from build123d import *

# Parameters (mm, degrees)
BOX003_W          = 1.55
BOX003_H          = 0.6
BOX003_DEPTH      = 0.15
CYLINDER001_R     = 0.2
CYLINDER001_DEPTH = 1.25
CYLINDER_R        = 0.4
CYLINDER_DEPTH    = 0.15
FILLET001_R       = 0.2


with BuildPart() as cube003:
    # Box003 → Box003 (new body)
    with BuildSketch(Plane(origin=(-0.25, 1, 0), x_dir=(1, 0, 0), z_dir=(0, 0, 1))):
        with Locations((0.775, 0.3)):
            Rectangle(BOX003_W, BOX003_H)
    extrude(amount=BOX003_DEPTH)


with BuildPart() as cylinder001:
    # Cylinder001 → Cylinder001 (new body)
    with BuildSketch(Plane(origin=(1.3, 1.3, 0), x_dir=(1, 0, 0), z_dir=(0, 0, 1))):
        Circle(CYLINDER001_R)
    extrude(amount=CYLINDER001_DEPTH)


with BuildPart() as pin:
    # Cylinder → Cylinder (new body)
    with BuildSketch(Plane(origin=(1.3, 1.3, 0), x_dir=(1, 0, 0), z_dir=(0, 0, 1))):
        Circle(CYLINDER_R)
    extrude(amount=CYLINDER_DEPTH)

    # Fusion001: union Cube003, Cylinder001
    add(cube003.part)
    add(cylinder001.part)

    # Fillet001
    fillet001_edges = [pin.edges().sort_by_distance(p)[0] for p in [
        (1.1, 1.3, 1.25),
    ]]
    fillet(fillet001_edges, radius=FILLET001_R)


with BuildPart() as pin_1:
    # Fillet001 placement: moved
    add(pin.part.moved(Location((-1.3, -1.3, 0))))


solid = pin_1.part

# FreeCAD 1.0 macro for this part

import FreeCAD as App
import Part
import Sketcher


def edges_at(feature, points):
    """Names of the edges that pass closest to the given points."""
    edges = feature.Shape.Edges
    near = lambda p: min(range(len(edges)), key=lambda i: edges[i].distToShape(Part.Vertex(*p))[0])
    return sorted({f"Edge{near(p) + 1}" for p in points})

doc = App.newDocument("Part")
body = doc.addObject("PartDesign::Body", "Body")

# Sketch on XY plane
sketch1 = body.newObject("Sketcher::SketchObject", "Sketch")
sketch1.AttachmentSupport = (doc.getObject("XY_Plane"), [""])
sketch1.MapMode = "FlatFace"
sketch1.addGeometry(Part.LineSegment(App.Vector(-0.2, 1.6, 0), App.Vector(-0.2, 1, 0)), False)
sketch1.addGeometry(Part.LineSegment(App.Vector(-0.2, 1, 0), App.Vector(1.3, 1, 0)), False)
sketch1.addGeometry(Part.LineSegment(App.Vector(1.3, 1, 0), App.Vector(1.3, 1.6, 0)), False)
sketch1.addGeometry(Part.LineSegment(App.Vector(1.3, 1.6, 0), App.Vector(-0.2, 1.6, 0)), False)
sketch1.addConstraint(Sketcher.Constraint("Coincident", 0, 2, 1, 1))
sketch1.addConstraint(Sketcher.Constraint("Coincident", 1, 2, 2, 1))
sketch1.addConstraint(Sketcher.Constraint("Coincident", 2, 2, 3, 1))
sketch1.addConstraint(Sketcher.Constraint("Coincident", 3, 2, 0, 1))
sketch1.addConstraint(Sketcher.Constraint("Vertical", 0))
sketch1.addConstraint(Sketcher.Constraint("Horizontal", 1))
sketch1.addConstraint(Sketcher.Constraint("Vertical", 2))
sketch1.addConstraint(Sketcher.Constraint("Horizontal", 3))
sketch1.addConstraint(Sketcher.Constraint("DistanceY", 0, 2, 0, 1, 0.6))
sketch1.addConstraint(Sketcher.Constraint("DistanceY", -1, 1, 0, 2, 1.0))
sketch1.addConstraint(Sketcher.Constraint("DistanceX", 1, 1, 1, 2, 1.55))
sketch1.addConstraint(Sketcher.Constraint("DistanceX", -1, 1, 1, 2, 1.3))
pad1 = body.newObject("PartDesign::Pad", "Pad")
pad1.Profile = sketch1
pad1.Length = 0.15
body2 = doc.addObject("PartDesign::Body", "Body001")

# Sketch on XY plane
sketch2 = body2.newObject("Sketcher::SketchObject", "Sketch001")
sketch2.AttachmentSupport = (doc.getObject("XY_Plane001"), [""])
sketch2.MapMode = "FlatFace"
sketch2.addGeometry(Part.Circle(App.Vector(1.3, 1.3, 0), App.Vector(0, 0, 1), 0.2), False)
sketch2.addConstraint(Sketcher.Constraint("Diameter", 0, 0.4))
sketch2.addConstraint(Sketcher.Constraint("DistanceX", -1, 1, 0, 3, 1.3))
sketch2.addConstraint(Sketcher.Constraint("DistanceY", -1, 1, 0, 3, 1.3))
pad2 = body2.newObject("PartDesign::Pad", "Pad001")
pad2.Profile = sketch2
pad2.Length = 1.25
body3 = doc.addObject("PartDesign::Body", "Body002")

# Sketch on XY plane
sketch3 = body3.newObject("Sketcher::SketchObject", "Sketch002")
sketch3.AttachmentSupport = (doc.getObject("XY_Plane002"), [""])
sketch3.MapMode = "FlatFace"
sketch3.addGeometry(Part.Circle(App.Vector(1.3, 1.3, 0), App.Vector(0, 0, 1), 0.4), False)
sketch3.addConstraint(Sketcher.Constraint("Diameter", 0, 0.8))
sketch3.addConstraint(Sketcher.Constraint("DistanceX", -1, 1, 0, 3, 1.3))
sketch3.addConstraint(Sketcher.Constraint("DistanceY", -1, 1, 0, 3, 1.3))
pad3 = body3.newObject("PartDesign::Pad", "Pad002")
pad3.Profile = sketch3
pad3.Length = 0.15
doc.recompute()

boolean = body3.newObject("PartDesign::Boolean", "Boolean")
boolean.Type = "Fuse"
boolean.addObjects([body])
doc.recompute()

boolean2 = body3.newObject("PartDesign::Boolean", "Boolean001")
boolean2.Type = "Fuse"
boolean2.addObjects([body2])
doc.recompute()

fillet = body3.newObject("PartDesign::Fillet", "Fillet")
fillet.Base = (boolean2, edges_at(boolean2, [(1.1, 1.3, 1.25)]))
fillet.Radius = 0.2
body4 = doc.addObject("PartDesign::Body", "Body003")
doc.recompute()

body3.Placement = App.Placement(App.Vector(-1.3, -1.3, 0), App.Rotation(App.Vector(0, 0, 1), 0))
boolean3 = body4.newObject("PartDesign::Boolean", "Boolean002")
boolean3.Type = "Fuse"
boolean3.addObjects([body3])

doc.recompute()
